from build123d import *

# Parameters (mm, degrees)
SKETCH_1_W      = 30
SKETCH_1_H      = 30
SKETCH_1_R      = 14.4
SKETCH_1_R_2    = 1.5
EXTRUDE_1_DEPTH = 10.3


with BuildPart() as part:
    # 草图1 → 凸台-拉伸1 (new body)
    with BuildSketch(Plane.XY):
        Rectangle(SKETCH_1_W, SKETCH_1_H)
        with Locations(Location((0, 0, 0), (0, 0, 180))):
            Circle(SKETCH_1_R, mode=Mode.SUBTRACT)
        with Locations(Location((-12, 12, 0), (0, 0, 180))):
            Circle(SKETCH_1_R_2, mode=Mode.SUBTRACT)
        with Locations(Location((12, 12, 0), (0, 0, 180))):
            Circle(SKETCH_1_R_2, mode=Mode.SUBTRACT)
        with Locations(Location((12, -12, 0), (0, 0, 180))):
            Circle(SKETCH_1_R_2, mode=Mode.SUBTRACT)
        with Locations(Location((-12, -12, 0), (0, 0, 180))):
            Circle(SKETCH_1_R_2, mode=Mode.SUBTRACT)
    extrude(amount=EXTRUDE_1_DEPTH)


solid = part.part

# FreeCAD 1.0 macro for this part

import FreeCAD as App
import Part
import Sketcher
from FreeCAD import Vector


def add_polygon(sketch, points):
    """Adds a closed chain of lines whose ends are joined by coincident constraints."""
    first, n = sketch.GeometryCount, len(points)
    for a, b in zip(points, points[1:] + points[:1]):
        sketch.addGeometry(Part.LineSegment(App.Vector(*a, 0), App.Vector(*b, 0)), False)
    for i in range(n):
        sketch.addConstraint(Sketcher.Constraint("Coincident", first + i, 2, first + (i + 1) % n, 1))

doc = App.newDocument("Part")
params = doc.addObject("Spreadsheet::Sheet", "Params")
for row, (alias, value) in enumerate([
    ("sketch1_diameter", "3 mm"),
    ("sketch1_diameter2", "28.8 mm"),
    ("sketch1_width", "30 mm"),
    ("pad1_length", "10.3 mm"),
], start=1):
    params.set(f"A{row}", alias)
    params.set(f"B{row}", "=" + value)
    params.setAlias(f"B{row}", alias)

body = doc.addObject("PartDesign::Body", "Body")

sketch1 = body.newObject("Sketcher::SketchObject", "Sketch")
sketch1.AttachmentSupport = (doc.getObject("XY_Plane"), [""])
sketch1.MapMode = "FlatFace"
add_polygon(sketch1, [(-15, 15), (-15, -15), (15, -15), (15, 15)])
sketch1.addGeometry(Part.Circle(Vector(-12, -12, 0), Vector(0, 0, 1), 1.5), False)
sketch1.addGeometry(Part.Circle(Vector(12, -12, 0), Vector(0, 0, 1), 1.5), False)
sketch1.addGeometry(Part.Circle(Vector(-12, 12, 0), Vector(0, 0, 1), 1.5), False)
sketch1.addGeometry(Part.Circle(Vector(0, 0, 0), Vector(0, 0, 1), 14.4), False)
sketch1.addGeometry(Part.Circle(Vector(12, 12, 0), Vector(0, 0, 1), 1.5), False)
sketch1.addConstraint(Sketcher.Constraint("Vertical", 0))
sketch1.addConstraint(Sketcher.Constraint("Horizontal", 1))
sketch1.addConstraint(Sketcher.Constraint("Vertical", 2))
sketch1.addConstraint(Sketcher.Constraint("Horizontal", 3))
sketch1.addConstraint(Sketcher.Constraint("Coincident", 7, 3, -1, 1))
sketch1.addConstraint(Sketcher.Constraint("Equal", 4, 5))
sketch1.addConstraint(Sketcher.Constraint("Equal", 5, 6))
sketch1.addConstraint(Sketcher.Constraint("Equal", 6, 8))
sketch1.addConstraint(Sketcher.Constraint("Symmetric", 5, 3, 6, 3, -1, 1))
sketch1.addConstraint(Sketcher.Constraint("Symmetric", 4, 3, 8, 3, -1, 1))
sketch1.addConstraint(Sketcher.Constraint("Symmetric", 0, 2, 2, 2, -1, 1))
sketch1.addConstraint(Sketcher.Constraint("Symmetric", 4, 3, 5, 3, -2))
sketch1.addConstraint(Sketcher.Constraint("Equal", 3, 0))
sketch1.addConstraint(Sketcher.Constraint("Diameter", 4, 3.0))
sketch1.addConstraint(Sketcher.Constraint("Diameter", 7, 28.8))
sketch1.addConstraint(Sketcher.Constraint("DistanceX", 1, 1, 1, 2, 30.0))
sketch1.addConstraint(Sketcher.Constraint("DistanceX", 4, 3, -1, 1, 12.0))
sketch1.addConstraint(Sketcher.Constraint("DistanceY", 4, 3, -1, 1, 12.0))
sketch1.setExpression("Constraints[17]", "Params.sketch1_diameter")
sketch1.setExpression("Constraints[18]", "Params.sketch1_diameter2")
sketch1.setExpression("Constraints[19]", "Params.sketch1_width")
pad1 = body.newObject("PartDesign::Pad", "Pad")
pad1.Profile = sketch1
pad1.setExpression("Length", "Params.pad1_length")

doc.recompute()
